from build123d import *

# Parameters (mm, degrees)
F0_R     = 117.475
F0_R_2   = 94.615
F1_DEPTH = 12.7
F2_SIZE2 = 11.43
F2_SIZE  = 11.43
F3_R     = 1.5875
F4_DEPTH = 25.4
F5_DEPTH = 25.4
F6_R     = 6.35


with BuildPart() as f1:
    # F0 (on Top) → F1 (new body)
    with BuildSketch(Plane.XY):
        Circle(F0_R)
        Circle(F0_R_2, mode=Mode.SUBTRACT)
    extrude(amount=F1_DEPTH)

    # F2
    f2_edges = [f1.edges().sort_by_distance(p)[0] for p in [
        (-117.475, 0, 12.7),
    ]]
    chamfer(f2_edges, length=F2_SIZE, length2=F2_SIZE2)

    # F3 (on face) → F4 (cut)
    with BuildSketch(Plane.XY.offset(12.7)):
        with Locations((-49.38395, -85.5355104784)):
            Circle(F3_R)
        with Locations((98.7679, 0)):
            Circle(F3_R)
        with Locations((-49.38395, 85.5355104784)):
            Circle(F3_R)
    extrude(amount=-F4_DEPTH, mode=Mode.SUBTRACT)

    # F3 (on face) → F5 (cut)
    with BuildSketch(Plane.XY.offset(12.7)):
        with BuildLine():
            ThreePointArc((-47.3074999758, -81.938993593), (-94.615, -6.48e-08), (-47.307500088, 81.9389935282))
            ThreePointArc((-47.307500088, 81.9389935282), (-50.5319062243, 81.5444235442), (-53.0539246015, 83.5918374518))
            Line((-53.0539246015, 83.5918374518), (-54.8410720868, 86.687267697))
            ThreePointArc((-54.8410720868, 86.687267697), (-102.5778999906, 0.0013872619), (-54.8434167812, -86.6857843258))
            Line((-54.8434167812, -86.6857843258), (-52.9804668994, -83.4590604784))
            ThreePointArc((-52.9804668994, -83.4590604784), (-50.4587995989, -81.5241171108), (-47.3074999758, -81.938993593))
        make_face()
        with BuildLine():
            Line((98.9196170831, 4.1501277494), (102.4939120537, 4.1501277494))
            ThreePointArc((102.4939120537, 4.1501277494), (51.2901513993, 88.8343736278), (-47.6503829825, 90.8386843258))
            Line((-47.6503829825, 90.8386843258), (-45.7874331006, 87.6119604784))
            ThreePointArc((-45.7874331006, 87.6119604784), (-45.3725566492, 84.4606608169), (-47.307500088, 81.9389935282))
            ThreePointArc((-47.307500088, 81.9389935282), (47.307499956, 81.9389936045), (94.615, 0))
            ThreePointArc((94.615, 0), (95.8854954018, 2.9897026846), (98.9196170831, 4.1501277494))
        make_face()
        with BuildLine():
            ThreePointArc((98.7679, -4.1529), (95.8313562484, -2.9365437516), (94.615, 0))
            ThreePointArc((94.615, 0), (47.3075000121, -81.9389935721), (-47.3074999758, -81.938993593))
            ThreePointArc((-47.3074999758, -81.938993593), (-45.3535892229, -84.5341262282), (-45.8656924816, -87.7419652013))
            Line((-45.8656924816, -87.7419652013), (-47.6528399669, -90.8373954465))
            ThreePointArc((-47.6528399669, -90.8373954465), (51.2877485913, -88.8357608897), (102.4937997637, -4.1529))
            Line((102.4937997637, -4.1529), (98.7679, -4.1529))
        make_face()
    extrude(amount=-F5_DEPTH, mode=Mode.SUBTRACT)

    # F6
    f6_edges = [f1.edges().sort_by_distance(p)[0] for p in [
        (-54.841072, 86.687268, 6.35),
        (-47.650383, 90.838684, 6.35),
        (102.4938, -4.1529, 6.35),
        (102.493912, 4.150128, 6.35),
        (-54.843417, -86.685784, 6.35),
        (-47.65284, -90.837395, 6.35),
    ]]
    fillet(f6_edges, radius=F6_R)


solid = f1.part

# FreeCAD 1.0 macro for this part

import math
import FreeCAD as App
import Part
import Sketcher

V = App.Vector
Q = App.Units.Quantity


def edges_at(feature, points):
    """Names of the edges that pass closest to the given points."""
    edges = feature.Shape.Edges
    near = lambda p: min(range(len(edges)), key=lambda i: edges[i].distToShape(Part.Vertex(*p))[0])
    return sorted({f"Edge{near(p) + 1}" for p in points})

doc = App.newDocument("Part")
body = doc.addObject("PartDesign::Body", "Body")

sketch1 = body.newObject("Sketcher::SketchObject", "Sketch")
sketch1.AttachmentSupport = (doc.getObject("XY_Plane"), [""])
sketch1.MapMode = "FlatFace"
sketch1.addGeometry([
    Part.Circle(V(0, 0, 0), V(0, 0, 1), 117),
    Part.Circle(V(0, 0, 0), V(0, 0, 1), 95),
], False)
sketch1.addConstraint([
    Sketcher.Constraint("Coincident", 0, 3, -1, 1),
    Sketcher.Constraint("Coincident", 1, 3, -1, 1),
    Sketcher.Constraint("Diameter", 0, Q("9.25 in")),
    Sketcher.Constraint("Diameter", 1, Q("7.45 in")),
])
pad1 = body.newObject("PartDesign::Pad", "Pad")
pad1.Profile = sketch1
pad1.Length = Q("0.5 in")
doc.recompute()

chamfer = body.newObject("PartDesign::Chamfer", "Chamfer")
chamfer.Base = (pad1, edges_at(pad1, [(-117.475, 0, 12.7)]))
chamfer.ChamferType = "Two distances"
chamfer.Size = Q("0.45 in")
chamfer.Size2 = Q("0.45 in")

sketch2 = body.newObject("Sketcher::SketchObject", "Sketch001")
sketch2.AttachmentSupport = (doc.getObject("XY_Plane"), [""])
sketch2.MapMode = "FlatFace"
sketch2.AttachmentOffset = App.Placement(V(0, 0, 0.5 * 25.4), App.Rotation())
sketch2.addGeometry([
    Part.Circle(V(-49.4, -85.5, 0), V(0, 0, 1), 1.6),
    Part.Circle(V(98.8, 0, 0), V(0, 0, 1), 1.6),
    Part.Circle(V(-49.4, 85.5, 0), V(0, 0, 1), 1.6),
], False)
sketch2.addConstraint([
    Sketcher.Constraint("Equal", 0, 1),
    Sketcher.Constraint("Equal", 1, 2),
    Sketcher.Constraint("Symmetric", 0, 3, 2, 3, -1),
    Sketcher.Constraint("PointOnObject", 1, 3, -1),
    Sketcher.Constraint("Diameter", 0, Q("0.125 in")),
    Sketcher.Constraint("DistanceX", -1, 1, 1, 3, Q("3.8885 in")),
    Sketcher.Constraint("DistanceX", 0, 3, -1, 1, Q("49.38395 mm")),
    Sketcher.Constraint("DistanceY", 0, 3, -1, 1, Q("85.53551 mm")),
])
pocket1 = body.newObject("PartDesign::Pocket", "Pocket")
pocket1.Profile = sketch2
pocket1.Length = Q("1 in")

sketch3 = body.newObject("Sketcher::SketchObject", "Sketch002")
sketch3.AttachmentSupport = (doc.getObject("XY_Plane"), [""])
sketch3.MapMode = "FlatFace"
sketch3.AttachmentOffset = App.Placement(V(0, 0, 0.5 * 25.4), App.Rotation())
sketch3.addGeometry([
    Part.ArcOfCircle(Part.Circle(V(0, 0, 0), V(0, 0, 1), 94.6), math.radians(120), math.radians(240)),
    Part.ArcOfCircle(Part.Circle(V(-49.4, 85.5, 0), V(0, 0, 1), 4.2), math.radians(-152), math.radians(-60)),
    Part.LineSegment(V(-53.1, 83.6, 0), V(-54.8, 86.7, 0)),
    Part.ArcOfCircle(Part.Circle(V(0, 0, 0), V(0, 0, 1), 102.6), math.radians(122), math.radians(238)),
    Part.LineSegment(V(-54.8, -86.7, 0), V(-53, -83.5, 0)),
    Part.ArcOfCircle(Part.Circle(V(-49.4, -85.5, 0), V(0, 0, 1), 4.2), math.radians(60), math.radians(150)),
    Part.LineSegment(V(98.9, 4.2, 0), V(102.5, 4.2, 0)),
    Part.ArcOfCircle(Part.Circle(V(0, 0, 0), V(0, 0, 1), 102.6), math.radians(2), math.radians(118)),
    Part.LineSegment(V(-47.7, 90.8, 0), V(-45.8, 87.6, 0)),
    Part.ArcOfCircle(Part.Circle(V(-49.4, 85.5, 0), V(0, 0, 1), 4.2), math.radians(-60), math.radians(30)),
    Part.ArcOfCircle(Part.Circle(V(0, 0, 0), V(0, 0, 1), 94.6), math.radians(0), math.radians(120)),
    Part.ArcOfCircle(Part.Circle(V(98.8, 0, 0), V(0, 0, 1), 4.2), math.radians(88), math.radians(180)),
    Part.ArcOfCircle(Part.Circle(V(98.8, 0, 0), V(0, 0, 1), 4.2), math.radians(180), math.radians(270)),
    Part.ArcOfCircle(Part.Circle(V(0, 0, 0), V(0, 0, 1), 94.6), math.radians(-120), math.radians(0)),
    Part.ArcOfCircle(Part.Circle(V(-49.4, -85.5, 0), V(0, 0, 1), 4.2), math.radians(-32), math.radians(60)),
    Part.LineSegment(V(-45.9, -87.7, 0), V(-47.7, -90.8, 0)),
    Part.ArcOfCircle(Part.Circle(V(0, 0, 0), V(0, 0, 1), 102.6), math.radians(-118), math.radians(-2)),
    Part.LineSegment(V(102.5, -4.2, 0), V(98.8, -4.2, 0)),
], False)
sketch3.addConstraint([
    Sketcher.Constraint("Tangent", 0, 1, 1, 2),
    Sketcher.Constraint("Coincident", 1, 1, 2, 1),
    Sketcher.Constraint("Coincident", 2, 2, 3, 1),
    Sketcher.Constraint("Coincident", 3, 2, 4, 1),
    Sketcher.Constraint("Tangent", 4, 2, 5, 2),
    Sketcher.Constraint("Tangent", 5, 1, 0, 2),
    Sketcher.Constraint("Coincident", 6, 2, 7, 1),
    Sketcher.Constraint("Coincident", 7, 2, 8, 1),
    Sketcher.Constraint("Tangent", 8, 2, 9, 2),
    Sketcher.Constraint("Tangent", 9, 1, 10, 2),
    Sketcher.Constraint("Tangent", 10, 1, 11, 2),
    Sketcher.Constraint("Coincident", 11, 1, 6, 1),
    Sketcher.Constraint("Tangent", 12, 1, 13, 2),
    Sketcher.Constraint("Tangent", 13, 1, 14, 2),
    Sketcher.Constraint("Coincident", 14, 1, 15, 1),
    Sketcher.Constraint("Coincident", 15, 2, 16, 1),
    Sketcher.Constraint("Coincident", 16, 2, 17, 1),
    Sketcher.Constraint("Tangent", 17, 2, 12, 2),
    Sketcher.Constraint("Horizontal", 6),
    Sketcher.Constraint("Horizontal", 17),
    Sketcher.Constraint("Coincident", 0, 3, -1, 1),
    Sketcher.Constraint("Coincident", 3, 3, -1, 1),
    Sketcher.Constraint("Coincident", 7, 3, -1, 1),
    Sketcher.Constraint("Coincident", 10, 3, -1, 1),
    Sketcher.Constraint("Coincident", 13, 3, -1, 1),
    Sketcher.Constraint("Coincident", 16, 3, -1, 1),
    Sketcher.Constraint("Coincident", 9, 3, 1, 3),
    Sketcher.Constraint("Coincident", 12, 3, 11, 3),
    Sketcher.Constraint("Coincident", 14, 3, 5, 3),
    Sketcher.Constraint("Equal", 1, 5),
    Sketcher.Constraint("Equal", 3, 7),
    Sketcher.Constraint("Equal", 5, 9),
    Sketcher.Constraint("Equal", 9, 11),
    Sketcher.Constraint("Equal", 11, 12),
    Sketcher.Constraint("Equal", 7, 16),
    Sketcher.Constraint("PointOnObject", 11, 3, -1),
    Sketcher.Constraint("Parallel", 2, 8),
    Sketcher.Constraint("Parallel", 4, 15),
    Sketcher.Constraint("Vertical", 1, 3, 5, 3),
    Sketcher.Constraint("Equal", 4, 8),
    Sketcher.Constraint("Equal", 2, 15),
    Sketcher.Constraint("Angle", 2, Q("120 deg")),
    Sketcher.Constraint("Angle", 4, Q("60 deg")),
    Sketcher.Constraint("Radius", 0, Q("3.725 in")),
    Sketcher.Constraint("Radius", 1, Q("0.1635 in")),
    Sketcher.Constraint("Radius", 3, Q("4.0385 in")),
    Sketcher.Constraint("DistanceX", 6, 1, 6, 2, Q("3.574295 mm")),
    Sketcher.Constraint("DistanceX", 15, 2, -1, 1, Q("47.65284 mm")),
])
pocket2 = body.newObject("PartDesign::Pocket", "Pocket001")
pocket2.Profile = sketch3
pocket2.Length = Q("1 in")
doc.recompute()

fillet = body.newObject("PartDesign::Fillet", "Fillet")
fillet.Base = (pocket2, edges_at(pocket2, [
    (-54.841, 86.687, 6.35),
    (-47.65, 90.839, 6.35),
    (102.494, -4.153, 6.35),
    (102.494, 4.15, 6.35),
    (-54.843, -86.686, 6.35),
    (-47.653, -90.837, 6.35),
]))
fillet.Radius = Q("0.25 in")

doc.recompute()
